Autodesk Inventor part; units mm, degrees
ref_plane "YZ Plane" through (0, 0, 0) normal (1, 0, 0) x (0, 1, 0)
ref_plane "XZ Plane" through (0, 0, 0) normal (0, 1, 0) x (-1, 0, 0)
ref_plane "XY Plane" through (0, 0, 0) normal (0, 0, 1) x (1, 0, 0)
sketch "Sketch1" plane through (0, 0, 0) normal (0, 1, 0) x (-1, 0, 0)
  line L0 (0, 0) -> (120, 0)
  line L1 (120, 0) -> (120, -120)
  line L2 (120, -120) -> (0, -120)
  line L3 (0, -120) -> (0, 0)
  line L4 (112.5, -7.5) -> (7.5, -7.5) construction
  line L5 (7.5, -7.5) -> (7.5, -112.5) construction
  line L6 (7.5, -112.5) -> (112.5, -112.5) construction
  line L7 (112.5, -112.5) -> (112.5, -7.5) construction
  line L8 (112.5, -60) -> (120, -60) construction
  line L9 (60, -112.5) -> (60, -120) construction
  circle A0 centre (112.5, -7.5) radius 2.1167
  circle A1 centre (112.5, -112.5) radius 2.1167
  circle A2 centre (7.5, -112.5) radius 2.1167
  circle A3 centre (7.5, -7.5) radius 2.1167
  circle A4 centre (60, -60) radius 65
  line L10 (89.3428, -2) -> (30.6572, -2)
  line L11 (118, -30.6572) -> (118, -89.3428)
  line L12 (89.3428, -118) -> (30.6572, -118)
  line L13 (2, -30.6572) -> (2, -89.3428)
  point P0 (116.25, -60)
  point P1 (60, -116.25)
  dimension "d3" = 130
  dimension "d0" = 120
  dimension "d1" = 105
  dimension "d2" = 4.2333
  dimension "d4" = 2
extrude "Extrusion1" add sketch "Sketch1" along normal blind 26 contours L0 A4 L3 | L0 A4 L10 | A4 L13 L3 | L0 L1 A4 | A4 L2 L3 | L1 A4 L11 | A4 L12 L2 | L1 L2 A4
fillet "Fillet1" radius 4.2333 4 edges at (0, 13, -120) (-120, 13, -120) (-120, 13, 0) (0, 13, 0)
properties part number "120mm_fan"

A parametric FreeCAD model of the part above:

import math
import FreeCAD as App
import Part
import Sketcher

V = App.Vector
Q = App.Units.Quantity


def edges_at(feature, points):
    """Names of the edges that pass closest to the given points."""
    edges = feature.Shape.Edges
    near = lambda p: min(range(len(edges)), key=lambda i: edges[i].distToShape(Part.Vertex(*p))[0])
    return sorted({f"Edge{near(p) + 1}" for p in points})


def add_polygon(sketch, points):
    """Adds a closed chain of lines whose ends are joined by coincident constraints."""
    first, n = sketch.GeometryCount, len(points)
    for a, b in zip(points, points[1:] + points[:1]):
        sketch.addGeometry(Part.LineSegment(App.Vector(*a, 0), App.Vector(*b, 0)), False)
    for i in range(n):
        sketch.addConstraint(Sketcher.Constraint("Coincident", first + i, 2, first + (i + 1) % n, 1))

doc = App.newDocument("Part")
params = doc.addObject("Spreadsheet::Sheet", "Params")
for row, (alias, value) in enumerate([
    ("sketch1_radius", "65 mm"),
    ("sketch1_width", "120 mm"),
    ("pad1_length", "26 mm"),
    ("fillet_radius", "4.2333 mm"),
], start=1):
    params.set(f"A{row}", alias)
    params.set(f"B{row}", "=" + value)
    params.setAlias(f"B{row}", alias)

body = doc.addObject("PartDesign::Body", "Body")

# Sketch on XZ plane
sketch1 = doc.addObject("Sketcher::SketchObject", "Sketch")
body.addObject(sketch1)
sketch1.AttachmentSupport = (doc.XZ_Plane, [""])
sketch1.MapMode = "FlatFace"
add_polygon(sketch1, [(0, 0), (0, -120), (-120, -120), (-120, 0)])  # lines 0-3
sketch1.addGeometry(Part.ArcOfCircle(Part.Circle(V(-60, -60, 0), V(0, 0, 1), 65), math.radians(27), math.radians(63)), False)  # 4
sketch1.addGeometry(Part.LineSegment(V(-30.7, -2, 0), V(-89.3, -2, 0)), False)  # 5
sketch1.addGeometry(Part.ArcOfCircle(Part.Circle(V(-60, -60, 0), V(0, 0, 1), 65), math.radians(117), math.radians(153)), False)  # 6
sketch1.addGeometry(Part.LineSegment(V(-118, -30.7, 0), V(-118, -89.3, 0)), False)  # 7
sketch1.addGeometry(Part.ArcOfCircle(Part.Circle(V(-60, -60, 0), V(0, 0, 1), 65), math.radians(-153), math.radians(-117)), False)  # 8
sketch1.addGeometry(Part.LineSegment(V(-89.3, -118, 0), V(-30.7, -118, 0)), False)  # 9
sketch1.addGeometry(Part.ArcOfCircle(Part.Circle(V(-60, -60, 0), V(0, 0, 1), 65), math.radians(-63), math.radians(-27)), False)  # 10
sketch1.addGeometry(Part.LineSegment(V(-2, -89.3, 0), V(-2, -30.7, 0)), False)  # 11
sketch1.addGeometry(Part.Circle(V(-7.5, -7.5, 0), V(0, 0, 1), 2.1), False)  # 12
sketch1.addGeometry(Part.Circle(V(-112.5, -7.5, 0), V(0, 0, 1), 2.1), False)  # 13
sketch1.addGeometry(Part.Circle(V(-7.5, -112.5, 0), V(0, 0, 1), 2.1), False)  # 14
sketch1.addGeometry(Part.Circle(V(-112.5, -112.5, 0), V(0, 0, 1), 2.1), False)  # 15
sketch1.addConstraint([
    Sketcher.Constraint("Coincident", 4, 2, 5, 1),
    Sketcher.Constraint("Coincident", 5, 2, 6, 1),
    Sketcher.Constraint("Coincident", 6, 2, 7, 1),
    Sketcher.Constraint("Coincident", 7, 2, 8, 1),
    Sketcher.Constraint("Coincident", 8, 2, 9, 1),
    Sketcher.Constraint("Coincident", 9, 2, 10, 1),
    Sketcher.Constraint("Coincident", 10, 2, 11, 1),
    Sketcher.Constraint("Coincident", 11, 2, 4, 1),
    Sketcher.Constraint("Vertical", 0),
    Sketcher.Constraint("Horizontal", 1),
    Sketcher.Constraint("Vertical", 2),
    Sketcher.Constraint("Horizontal", 3),
    Sketcher.Constraint("Horizontal", 5),
    Sketcher.Constraint("Vertical", 7),
    Sketcher.Constraint("Horizontal", 9),
    Sketcher.Constraint("Vertical", 11),
    Sketcher.Constraint("Coincident", 3, 2, -1, 1),
    Sketcher.Constraint("Coincident", 6, 3, 4, 3),
    Sketcher.Constraint("Coincident", 8, 3, 4, 3),
    Sketcher.Constraint("Coincident", 10, 3, 4, 3),
    Sketcher.Constraint("Equal", 4, 6),
    Sketcher.Constraint("Equal", 6, 8),
    Sketcher.Constraint("Equal", 8, 10),
    Sketcher.Constraint("Equal", 12, 13),
    Sketcher.Constraint("Equal", 13, 14),
    Sketcher.Constraint("Equal", 14, 15),
    Sketcher.Constraint("Horizontal", 12, 3, 13, 3),
    Sketcher.Constraint("Horizontal", 14, 3, 15, 3),
    Sketcher.Constraint("Horizontal", 7, 2, 10, 2),
    Sketcher.Constraint("Vertical", 12, 3, 14, 3),
    Sketcher.Constraint("Vertical", 13, 3, 15, 3),
    Sketcher.Constraint("Vertical", 5, 2, 8, 2),
    Sketcher.Constraint("Equal", 3, 0),
    Sketcher.Constraint("Equal", 9, 7),
    Sketcher.Constraint("Radius", 4, Q("65 mm")),
    Sketcher.Constraint("DistanceX", 1, 2, 1, 1, Q("120 mm")),
    Sketcher.Constraint("DistanceY", 4, 2, -1, 1, Q("2 mm")),
    Sketcher.Constraint("DistanceX", 10, 2, -1, 1, Q("2 mm")),
    Sketcher.Constraint("DistanceX", 13, 3, 12, 3, Q("105 mm")),
    Sketcher.Constraint("DistanceY", 14, 3, 12, 3, Q("105 mm")),
    Sketcher.Constraint("DistanceX", 2, 2, 6, 2, Q("2 mm")),
    Sketcher.Constraint("Diameter", 12, Q("4.2334 mm")),
    Sketcher.Constraint("DistanceX", 12, 3, -1, 1, Q("7.5 mm")),
    Sketcher.Constraint("DistanceY", 12, 3, -1, 1, Q("7.5 mm")),
])
sketch1.setExpression("Constraints[38]", "Params.sketch1_radius")
sketch1.setExpression("Constraints[39]", "Params.sketch1_width")
pad1 = doc.addObject("PartDesign::Pad", "Pad")
body.addObject(pad1)
pad1.Profile = sketch1
pad1.setExpression("Length", "Params.pad1_length")
pad1.Reversed = True
doc.recompute()

fillet = doc.addObject("PartDesign::Fillet", "Fillet")
body.addObject(fillet)
fillet.Base = (pad1, edges_at(pad1, [
    (0, 13, -120),
    (-120, 13, -120),
    (-120, 13, 0),
    (0, 13, 0),
]))
fillet.setExpression("Radius", "Params.fillet_radius")

doc.recompute()
